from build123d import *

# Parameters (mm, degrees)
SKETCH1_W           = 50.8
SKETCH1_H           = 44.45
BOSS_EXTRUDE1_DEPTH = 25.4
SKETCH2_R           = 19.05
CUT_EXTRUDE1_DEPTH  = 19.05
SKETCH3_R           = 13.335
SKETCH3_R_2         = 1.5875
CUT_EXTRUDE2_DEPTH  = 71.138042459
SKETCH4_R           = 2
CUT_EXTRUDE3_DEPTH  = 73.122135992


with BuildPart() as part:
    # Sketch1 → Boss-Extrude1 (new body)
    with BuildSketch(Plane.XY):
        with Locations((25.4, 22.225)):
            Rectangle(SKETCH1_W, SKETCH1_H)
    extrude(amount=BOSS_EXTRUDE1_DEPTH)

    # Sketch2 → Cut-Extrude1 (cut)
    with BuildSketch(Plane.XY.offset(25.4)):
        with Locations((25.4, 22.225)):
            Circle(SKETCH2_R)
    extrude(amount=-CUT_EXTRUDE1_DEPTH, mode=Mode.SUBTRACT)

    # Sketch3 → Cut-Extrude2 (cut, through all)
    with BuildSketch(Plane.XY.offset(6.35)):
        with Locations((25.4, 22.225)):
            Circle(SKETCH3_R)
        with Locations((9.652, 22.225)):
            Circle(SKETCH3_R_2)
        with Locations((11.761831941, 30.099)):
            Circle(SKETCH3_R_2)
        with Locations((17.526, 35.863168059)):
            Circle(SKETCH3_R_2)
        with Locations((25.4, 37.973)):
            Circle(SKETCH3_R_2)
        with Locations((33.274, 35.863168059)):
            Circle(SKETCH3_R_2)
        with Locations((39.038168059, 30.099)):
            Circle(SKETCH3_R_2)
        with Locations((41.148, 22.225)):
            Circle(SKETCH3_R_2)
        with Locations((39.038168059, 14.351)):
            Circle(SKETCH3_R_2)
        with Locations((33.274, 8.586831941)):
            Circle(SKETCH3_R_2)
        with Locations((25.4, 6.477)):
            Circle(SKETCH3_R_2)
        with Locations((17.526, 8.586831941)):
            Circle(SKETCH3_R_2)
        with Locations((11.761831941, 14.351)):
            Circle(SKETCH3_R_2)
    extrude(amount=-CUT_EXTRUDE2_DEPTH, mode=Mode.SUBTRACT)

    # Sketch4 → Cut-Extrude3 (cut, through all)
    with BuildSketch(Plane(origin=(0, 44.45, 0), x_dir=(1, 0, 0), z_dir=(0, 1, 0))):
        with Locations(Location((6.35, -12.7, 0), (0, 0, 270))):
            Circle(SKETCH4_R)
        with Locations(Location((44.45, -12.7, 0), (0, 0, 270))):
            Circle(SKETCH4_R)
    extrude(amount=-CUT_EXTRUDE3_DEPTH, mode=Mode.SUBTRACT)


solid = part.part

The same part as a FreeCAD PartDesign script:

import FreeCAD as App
import Part
import Sketcher
from FreeCAD import Vector
Q = App.Units.Quantity


def add_polygon(sketch, points):
    """Adds a closed chain of lines whose ends are joined by coincident constraints."""
    first, n = sketch.GeometryCount, len(points)
    for a, b in zip(points, points[1:] + points[:1]):
        sketch.addGeometry(Part.LineSegment(App.Vector(*a, 0), App.Vector(*b, 0)), False)
    for i in range(n):
        sketch.addConstraint(Sketcher.Constraint("Coincident", first + i, 2, first + (i + 1) % n, 1))

doc = App.newDocument("Part")
body = doc.addObject("PartDesign::Body", "Body")

sketch1 = doc.addObject("Sketcher::SketchObject", "Sketch")
body.addObject(sketch1)
sketch1.AttachmentSupport = (doc.XY_Plane, [""])
sketch1.MapMode = "FlatFace"
add_polygon(sketch1, [(0, 44), (0, 0), (51, 0), (51, 44)])
sketch1.addConstraint(Sketcher.Constraint("Vertical", 0))
sketch1.addConstraint(Sketcher.Constraint("Horizontal", 1))
sketch1.addConstraint(Sketcher.Constraint("Vertical", 2))
sketch1.addConstraint(Sketcher.Constraint("Horizontal", 3))
sketch1.addConstraint(Sketcher.Constraint("Coincident", 0, 2, -1, 1))
sketch1.addConstraint(Sketcher.Constraint("DistanceX", 1, 1, 1, 2, Q("2 in")))
sketch1.addConstraint(Sketcher.Constraint("DistanceY", 0, 2, 0, 1, Q("1.75 in")))
pad1 = doc.addObject("PartDesign::Pad", "Pad")
body.addObject(pad1)
pad1.Profile = sketch1
pad1.Length = Q("1 in")

sketch2 = doc.addObject("Sketcher::SketchObject", "Sketch001")
body.addObject(sketch2)
sketch2.AttachmentSupport = (doc.XY_Plane, [""])
sketch2.MapMode = "FlatFace"
sketch2.AttachmentOffset = App.Placement(Vector(0, 0, 1 * 25.4), App.Rotation())
sketch2.addGeometry(Part.Circle(Vector(25, 22, 0), Vector(0, 0, 1), 19), False)
sketch2.addConstraint(Sketcher.Constraint("Diameter", 0, Q("1.5 in")))
sketch2.addConstraint(Sketcher.Constraint("DistanceX", -1, 1, 0, 3, Q("1 in")))
sketch2.addConstraint(Sketcher.Constraint("DistanceY", -1, 1, 0, 3, Q("0.875 in")))
pocket1 = doc.addObject("PartDesign::Pocket", "Pocket")
body.addObject(pocket1)
pocket1.Profile = sketch2
pocket1.Length = Q("0.75 in")

sketch3 = doc.addObject("Sketcher::SketchObject", "Sketch002")
body.addObject(sketch3)
sketch3.AttachmentSupport = (doc.XY_Plane, [""])
sketch3.MapMode = "FlatFace"
sketch3.AttachmentOffset = App.Placement(Vector(0, 0, 0.25 * 25.4), App.Rotation())
sketch3.addGeometry(Part.Circle(Vector(25.4, 22.2, 0), Vector(0, 0, 1), 13.3), False)
sketch3.addGeometry(Part.Circle(Vector(9.7, 22.2, 0), Vector(0, 0, 1), 1.6), False)
sketch3.addGeometry(Part.Circle(Vector(11.8, 30.1, 0), Vector(0, 0, 1), 1.6), False)
sketch3.addGeometry(Part.Circle(Vector(17.5, 35.9, 0), Vector(0, 0, 1), 1.6), False)
sketch3.addGeometry(Part.Circle(Vector(25.4, 38, 0), Vector(0, 0, 1), 1.6), False)
sketch3.addGeometry(Part.Circle(Vector(33.3, 35.9, 0), Vector(0, 0, 1), 1.6), False)
sketch3.addGeometry(Part.Circle(Vector(39, 30.1, 0), Vector(0, 0, 1), 1.6), False)
sketch3.addGeometry(Part.Circle(Vector(41.1, 22.2, 0), Vector(0, 0, 1), 1.6), False)
sketch3.addGeometry(Part.Circle(Vector(39, 14.4, 0), Vector(0, 0, 1), 1.6), False)
sketch3.addGeometry(Part.Circle(Vector(33.3, 8.6, 0), Vector(0, 0, 1), 1.6), False)
sketch3.addGeometry(Part.Circle(Vector(25.4, 6.5, 0), Vector(0, 0, 1), 1.6), False)
sketch3.addGeometry(Part.Circle(Vector(17.5, 8.6, 0), Vector(0, 0, 1), 1.6), False)
sketch3.addGeometry(Part.Circle(Vector(11.8, 14.4, 0), Vector(0, 0, 1), 1.6), False)
sketch3.addConstraint(Sketcher.Constraint("Equal", 1, 2))
sketch3.addConstraint(Sketcher.Constraint("Equal", 2, 3))
sketch3.addConstraint(Sketcher.Constraint("Equal", 3, 4))
sketch3.addConstraint(Sketcher.Constraint("Equal", 4, 5))
sketch3.addConstraint(Sketcher.Constraint("Equal", 5, 6))
sketch3.addConstraint(Sketcher.Constraint("Equal", 6, 7))
sketch3.addConstraint(Sketcher.Constraint("Equal", 7, 8))
sketch3.addConstraint(Sketcher.Constraint("Equal", 8, 9))
sketch3.addConstraint(Sketcher.Constraint("Equal", 9, 10))
sketch3.addConstraint(Sketcher.Constraint("Equal", 10, 11))
sketch3.addConstraint(Sketcher.Constraint("Equal", 11, 12))
sketch3.addConstraint(Sketcher.Constraint("Horizontal", 0, 3, 1, 3))
sketch3.addConstraint(Sketcher.Constraint("Horizontal", 3, 3, 5, 3))
sketch3.addConstraint(Sketcher.Constraint("Horizontal", 2, 3, 6, 3))
sketch3.addConstraint(Sketcher.Constraint("Horizontal", 1, 3, 7, 3))
sketch3.addConstraint(Sketcher.Constraint("Horizontal", 9, 3, 11, 3))
sketch3.addConstraint(Sketcher.Constraint("Horizontal", 8, 3, 12, 3))
sketch3.addConstraint(Sketcher.Constraint("Vertical", 0, 3, 4, 3))
sketch3.addConstraint(Sketcher.Constraint("Vertical", 6, 3, 8, 3))
sketch3.addConstraint(Sketcher.Constraint("Vertical", 5, 3, 9, 3))
sketch3.addConstraint(Sketcher.Constraint("Vertical", 4, 3, 10, 3))
sketch3.addConstraint(Sketcher.Constraint("Vertical", 3, 3, 11, 3))
sketch3.addConstraint(Sketcher.Constraint("Vertical", 2, 3, 12, 3))
sketch3.addConstraint(Sketcher.Constraint("Diameter", 0, Q("1.05 in")))
sketch3.addConstraint(Sketcher.Constraint("Diameter", 1, Q("0.125 in")))
sketch3.addConstraint(Sketcher.Constraint("DistanceX", -1, 1, 0, 3, Q("1 in")))
sketch3.addConstraint(Sketcher.Constraint("DistanceX", -1, 1, 1, 3, Q("0.38 in")))
sketch3.addConstraint(Sketcher.Constraint("DistanceX", -1, 1, 3, 3, Q("0.69 in")))
sketch3.addConstraint(Sketcher.Constraint("DistanceX", -1, 1, 5, 3, Q("1.31 in")))
sketch3.addConstraint(Sketcher.Constraint("DistanceX", -1, 1, 7, 3, Q("1.62 in")))
sketch3.addConstraint(Sketcher.Constraint("DistanceY", 1, 3, 2, 3, Q("0.31 in")))
sketch3.addConstraint(Sketcher.Constraint("DistanceY", 0, 3, 4, 3, Q("0.62 in")))
sketch3.addConstraint(Sketcher.Constraint("DistanceY", 8, 3, 7, 3, Q("0.31 in")))
sketch3.addConstraint(Sketcher.Constraint("DistanceY", 10, 3, 0, 3, Q("0.62 in")))
sketch3.addConstraint(Sketcher.Constraint("DistanceY", -1, 1, 0, 3, Q("0.875 in")))
sketch3.addConstraint(Sketcher.Constraint("DistanceX", -1, 1, 2, 3, Q("11.761832 mm")))
sketch3.addConstraint(Sketcher.Constraint("DistanceY", -1, 1, 3, 3, Q("35.863168 mm")))
sketch3.addConstraint(Sketcher.Constraint("DistanceX", -1, 1, 6, 3, Q("39.038168 mm")))
sketch3.addConstraint(Sketcher.Constraint("DistanceY", -1, 1, 9, 3, Q("8.586832 mm")))
pocket2 = doc.addObject("PartDesign::Pocket", "Pocket001")
body.addObject(pocket2)
pocket2.Profile = sketch3
pocket2.Type = "ThroughAll"

sketch4 = doc.addObject("Sketcher::SketchObject", "Sketch003")
body.addObject(sketch4)
sketch4.AttachmentSupport = (doc.XZ_Plane, [""])
sketch4.MapMode = "FlatFace"
sketch4.AttachmentOffset = App.Placement(Vector(0, 0, -1.75 * 25.4), App.Rotation())
sketch4.addGeometry(Part.Circle(Vector(6.3, 12.7, 0), Vector(0, 0, 1), 2), False)
sketch4.addGeometry(Part.Circle(Vector(44.5, 12.7, 0), Vector(0, 0, 1), 2), False)
sketch4.addConstraint(Sketcher.Constraint("Equal", 0, 1))
sketch4.addConstraint(Sketcher.Constraint("Horizontal", 0, 3, 1, 3))
sketch4.addConstraint(Sketcher.Constraint("DistanceY", -1, 1, 0, 3, Q("0.5 in")))
sketch4.addConstraint(Sketcher.Constraint("DistanceX", 0, 3, 1, 3, Q("1.5 in")))
sketch4.addConstraint(Sketcher.Constraint("Diameter", 0, Q("4 mm")))
sketch4.addConstraint(Sketcher.Constraint("DistanceX", -1, 1, 0, 3, Q("0.25 in")))
pocket3 = doc.addObject("PartDesign::Pocket", "Pocket002")
body.addObject(pocket3)
pocket3.Profile = sketch4
pocket3.Type = "ThroughAll"
pocket3.Reversed = True

doc.recompute()
